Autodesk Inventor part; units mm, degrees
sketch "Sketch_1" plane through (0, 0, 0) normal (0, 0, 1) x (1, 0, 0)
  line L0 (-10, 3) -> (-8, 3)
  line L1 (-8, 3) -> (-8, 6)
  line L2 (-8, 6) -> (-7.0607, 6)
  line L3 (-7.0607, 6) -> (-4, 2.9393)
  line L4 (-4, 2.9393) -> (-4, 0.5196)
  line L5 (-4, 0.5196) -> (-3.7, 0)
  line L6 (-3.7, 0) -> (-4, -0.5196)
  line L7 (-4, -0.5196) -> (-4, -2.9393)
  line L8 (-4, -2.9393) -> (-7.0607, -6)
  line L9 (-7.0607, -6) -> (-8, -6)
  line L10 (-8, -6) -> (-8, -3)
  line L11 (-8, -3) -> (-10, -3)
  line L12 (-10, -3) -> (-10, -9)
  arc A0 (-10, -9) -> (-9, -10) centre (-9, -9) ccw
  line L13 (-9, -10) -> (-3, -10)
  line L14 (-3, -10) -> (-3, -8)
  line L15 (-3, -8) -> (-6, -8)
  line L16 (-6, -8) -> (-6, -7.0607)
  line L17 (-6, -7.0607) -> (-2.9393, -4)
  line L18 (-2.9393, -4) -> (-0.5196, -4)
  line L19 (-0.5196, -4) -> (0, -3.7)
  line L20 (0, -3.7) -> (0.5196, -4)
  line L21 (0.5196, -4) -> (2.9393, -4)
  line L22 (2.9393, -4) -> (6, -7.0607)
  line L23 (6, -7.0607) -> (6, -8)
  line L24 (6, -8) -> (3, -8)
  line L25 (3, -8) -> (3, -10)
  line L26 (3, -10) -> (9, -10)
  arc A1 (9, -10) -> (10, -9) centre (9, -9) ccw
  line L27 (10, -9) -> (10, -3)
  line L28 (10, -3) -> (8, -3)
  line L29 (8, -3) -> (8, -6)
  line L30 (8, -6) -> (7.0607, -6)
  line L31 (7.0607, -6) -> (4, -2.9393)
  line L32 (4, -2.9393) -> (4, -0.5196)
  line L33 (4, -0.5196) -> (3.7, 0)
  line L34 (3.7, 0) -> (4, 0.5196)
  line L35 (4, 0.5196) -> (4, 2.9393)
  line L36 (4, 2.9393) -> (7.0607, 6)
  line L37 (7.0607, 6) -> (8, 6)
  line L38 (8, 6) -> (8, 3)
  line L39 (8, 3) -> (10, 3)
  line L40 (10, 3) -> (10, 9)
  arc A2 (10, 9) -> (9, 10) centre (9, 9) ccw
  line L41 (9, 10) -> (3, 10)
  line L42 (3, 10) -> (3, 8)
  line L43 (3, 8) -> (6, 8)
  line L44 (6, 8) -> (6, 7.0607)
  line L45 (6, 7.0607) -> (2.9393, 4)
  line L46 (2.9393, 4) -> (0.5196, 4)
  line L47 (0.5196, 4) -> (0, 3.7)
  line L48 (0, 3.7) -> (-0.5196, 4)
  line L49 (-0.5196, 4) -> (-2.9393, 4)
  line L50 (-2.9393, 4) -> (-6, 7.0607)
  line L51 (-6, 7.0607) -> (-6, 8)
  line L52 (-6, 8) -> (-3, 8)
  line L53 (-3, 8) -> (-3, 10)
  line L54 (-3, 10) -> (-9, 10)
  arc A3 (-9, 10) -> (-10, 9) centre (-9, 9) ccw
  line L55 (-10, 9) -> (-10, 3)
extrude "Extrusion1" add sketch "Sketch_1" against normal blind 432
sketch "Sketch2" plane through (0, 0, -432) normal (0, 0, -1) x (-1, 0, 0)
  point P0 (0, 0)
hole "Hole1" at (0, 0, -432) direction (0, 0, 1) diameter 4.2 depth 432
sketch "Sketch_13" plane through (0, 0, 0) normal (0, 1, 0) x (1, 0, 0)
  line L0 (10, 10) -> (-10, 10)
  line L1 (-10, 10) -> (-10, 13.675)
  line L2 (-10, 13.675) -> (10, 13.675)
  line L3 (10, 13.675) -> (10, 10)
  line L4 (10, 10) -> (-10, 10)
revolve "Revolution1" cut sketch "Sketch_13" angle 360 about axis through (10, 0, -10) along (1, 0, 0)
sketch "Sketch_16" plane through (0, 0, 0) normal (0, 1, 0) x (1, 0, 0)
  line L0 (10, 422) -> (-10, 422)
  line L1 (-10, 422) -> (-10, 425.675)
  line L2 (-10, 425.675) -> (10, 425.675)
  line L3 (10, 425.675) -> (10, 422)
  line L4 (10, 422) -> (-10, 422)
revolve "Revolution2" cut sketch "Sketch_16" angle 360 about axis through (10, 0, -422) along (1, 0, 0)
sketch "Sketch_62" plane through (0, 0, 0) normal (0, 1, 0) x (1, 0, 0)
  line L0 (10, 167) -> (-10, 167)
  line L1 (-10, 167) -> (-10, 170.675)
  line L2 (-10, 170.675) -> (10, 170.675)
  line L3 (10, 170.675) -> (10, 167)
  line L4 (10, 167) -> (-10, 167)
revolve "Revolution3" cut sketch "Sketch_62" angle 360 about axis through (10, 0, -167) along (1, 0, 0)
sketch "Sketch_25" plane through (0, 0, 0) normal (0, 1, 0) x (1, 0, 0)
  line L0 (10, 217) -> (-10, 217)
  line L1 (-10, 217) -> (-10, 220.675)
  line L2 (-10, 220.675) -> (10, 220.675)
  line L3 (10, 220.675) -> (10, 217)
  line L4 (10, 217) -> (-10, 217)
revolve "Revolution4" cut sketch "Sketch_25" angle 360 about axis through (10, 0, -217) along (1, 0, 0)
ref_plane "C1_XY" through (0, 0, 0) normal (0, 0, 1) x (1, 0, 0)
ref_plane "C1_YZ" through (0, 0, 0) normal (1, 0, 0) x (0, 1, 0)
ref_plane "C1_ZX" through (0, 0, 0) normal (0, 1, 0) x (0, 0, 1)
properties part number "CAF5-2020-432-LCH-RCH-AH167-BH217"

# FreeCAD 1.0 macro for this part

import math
import FreeCAD as App
import Part
import Sketcher

V = App.Vector
Q = App.Units.Quantity


def add_polygon(sketch, points):
    """Adds a closed chain of lines whose ends are joined by coincident constraints."""
    first, n = sketch.GeometryCount, len(points)
    for a, b in zip(points, points[1:] + points[:1]):
        sketch.addGeometry(Part.LineSegment(App.Vector(*a, 0), App.Vector(*b, 0)), False)
    for i in range(n):
        sketch.addConstraint(Sketcher.Constraint("Coincident", first + i, 2, first + (i + 1) % n, 1))

doc = App.newDocument("Part")
body = doc.addObject("PartDesign::Body", "Body")

# Sketch on XY plane
sketch1 = doc.addObject("Sketcher::SketchObject", "Sketch")
body.addObject(sketch1)
sketch1.AttachmentSupport = (doc.XY_Plane, [""])
sketch1.MapMode = "FlatFace"
sketch1.addGeometry([
    Part.LineSegment(V(-10, 9, 0), V(-10, 3, 0)),  # 0
    Part.LineSegment(V(-10, 3, 0), V(-8, 3, 0)),  # 1
    Part.LineSegment(V(-8, 3, 0), V(-8, 6, 0)),  # 2
    Part.LineSegment(V(-8, 6, 0), V(-7.1, 6, 0)),  # 3
    Part.LineSegment(V(-7.1, 6, 0), V(-4, 2.9, 0)),  # 4
    Part.LineSegment(V(-4, 2.9, 0), V(-4, 0.5, 0)),  # 5
    Part.LineSegment(V(-4, 0.5, 0), V(-3.7, 0, 0)),  # 6
    Part.LineSegment(V(-3.7, 0, 0), V(-4, -0.5, 0)),  # 7
    Part.LineSegment(V(-4, -0.5, 0), V(-4, -2.9, 0)),  # 8
    Part.LineSegment(V(-4, -2.9, 0), V(-7.1, -6, 0)),  # 9
    Part.LineSegment(V(-7.1, -6, 0), V(-8, -6, 0)),  # 10
    Part.LineSegment(V(-8, -6, 0), V(-8, -3, 0)),  # 11
    Part.LineSegment(V(-8, -3, 0), V(-10, -3, 0)),  # 12
    Part.LineSegment(V(-10, -3, 0), V(-10, -9, 0)),  # 13
    Part.ArcOfCircle(Part.Circle(V(-9, -9, 0), V(0, 0, 1), 1), math.radians(180), math.radians(270)),  # 14
    Part.LineSegment(V(-9, -10, 0), V(-3, -10, 0)),  # 15
    Part.LineSegment(V(-3, -10, 0), V(-3, -8, 0)),  # 16
    Part.LineSegment(V(-3, -8, 0), V(-6, -8, 0)),  # 17
    Part.LineSegment(V(-6, -8, 0), V(-6, -7.1, 0)),  # 18
    Part.LineSegment(V(-6, -7.1, 0), V(-2.9, -4, 0)),  # 19
    Part.LineSegment(V(-2.9, -4, 0), V(-0.5, -4, 0)),  # 20
    Part.LineSegment(V(-0.5, -4, 0), V(0, -3.7, 0)),  # 21
    Part.LineSegment(V(0, -3.7, 0), V(0.5, -4, 0)),  # 22
    Part.LineSegment(V(0.5, -4, 0), V(2.9, -4, 0)),  # 23
    Part.LineSegment(V(2.9, -4, 0), V(6, -7.1, 0)),  # 24
    Part.LineSegment(V(6, -7.1, 0), V(6, -8, 0)),  # 25
    Part.LineSegment(V(6, -8, 0), V(3, -8, 0)),  # 26
    Part.LineSegment(V(3, -8, 0), V(3, -10, 0)),  # 27
    Part.LineSegment(V(3, -10, 0), V(9, -10, 0)),  # 28
    Part.ArcOfCircle(Part.Circle(V(9, -9, 0), V(0, 0, 1), 1), math.radians(-90), math.radians(0)),  # 29
    Part.LineSegment(V(10, -9, 0), V(10, -3, 0)),  # 30
    Part.LineSegment(V(10, -3, 0), V(8, -3, 0)),  # 31
    Part.LineSegment(V(8, -3, 0), V(8, -6, 0)),  # 32
    Part.LineSegment(V(8, -6, 0), V(7.1, -6, 0)),  # 33
    Part.LineSegment(V(7.1, -6, 0), V(4, -2.9, 0)),  # 34
    Part.LineSegment(V(4, -2.9, 0), V(4, -0.5, 0)),  # 35
    Part.LineSegment(V(4, -0.5, 0), V(3.7, 0, 0)),  # 36
    Part.LineSegment(V(3.7, 0, 0), V(4, 0.5, 0)),  # 37
    Part.LineSegment(V(4, 0.5, 0), V(4, 2.9, 0)),  # 38
    Part.LineSegment(V(4, 2.9, 0), V(7.1, 6, 0)),  # 39
    Part.LineSegment(V(7.1, 6, 0), V(8, 6, 0)),  # 40
    Part.LineSegment(V(8, 6, 0), V(8, 3, 0)),  # 41
    Part.LineSegment(V(8, 3, 0), V(10, 3, 0)),  # 42
    Part.LineSegment(V(10, 3, 0), V(10, 9, 0)),  # 43
    Part.ArcOfCircle(Part.Circle(V(9, 9, 0), V(0, 0, 1), 1), math.radians(0), math.radians(90)),  # 44
    Part.LineSegment(V(9, 10, 0), V(3, 10, 0)),  # 45
    Part.LineSegment(V(3, 10, 0), V(3, 8, 0)),  # 46
    Part.LineSegment(V(3, 8, 0), V(6, 8, 0)),  # 47
    Part.LineSegment(V(6, 8, 0), V(6, 7.1, 0)),  # 48
    Part.LineSegment(V(6, 7.1, 0), V(2.9, 4, 0)),  # 49
    Part.LineSegment(V(2.9, 4, 0), V(0.5, 4, 0)),  # 50
    Part.LineSegment(V(0.5, 4, 0), V(0, 3.7, 0)),  # 51
    Part.LineSegment(V(0, 3.7, 0), V(-0.5, 4, 0)),  # 52
    Part.LineSegment(V(-0.5, 4, 0), V(-2.9, 4, 0)),  # 53
    Part.LineSegment(V(-2.9, 4, 0), V(-6, 7.1, 0)),  # 54
    Part.LineSegment(V(-6, 7.1, 0), V(-6, 8, 0)),  # 55
    Part.LineSegment(V(-6, 8, 0), V(-3, 8, 0)),  # 56
    Part.LineSegment(V(-3, 8, 0), V(-3, 10, 0)),  # 57
    Part.LineSegment(V(-3, 10, 0), V(-9, 10, 0)),  # 58
    Part.ArcOfCircle(Part.Circle(V(-9, 9, 0), V(0, 0, 1), 1), math.radians(90), math.radians(180)),  # 59
], False)
sketch1.addConstraint([
    Sketcher.Constraint("Coincident", 0, 2, 1, 1),
    Sketcher.Constraint("Coincident", 1, 2, 2, 1),
    Sketcher.Constraint("Coincident", 2, 2, 3, 1),
    Sketcher.Constraint("Coincident", 3, 2, 4, 1),
    Sketcher.Constraint("Coincident", 4, 2, 5, 1),
    Sketcher.Constraint("Coincident", 5, 2, 6, 1),
    Sketcher.Constraint("Coincident", 6, 2, 7, 1),
    Sketcher.Constraint("Coincident", 7, 2, 8, 1),
    Sketcher.Constraint("Coincident", 8, 2, 9, 1),
    Sketcher.Constraint("Coincident", 9, 2, 10, 1),
    Sketcher.Constraint("Coincident", 10, 2, 11, 1),
    Sketcher.Constraint("Coincident", 11, 2, 12, 1),
    Sketcher.Constraint("Coincident", 12, 2, 13, 1),
    Sketcher.Constraint("Tangent", 13, 2, 14, 1),
    Sketcher.Constraint("Tangent", 14, 2, 15, 1),
    Sketcher.Constraint("Coincident", 15, 2, 16, 1),
    Sketcher.Constraint("Coincident", 16, 2, 17, 1),
    Sketcher.Constraint("Coincident", 17, 2, 18, 1),
    Sketcher.Constraint("Coincident", 18, 2, 19, 1),
    Sketcher.Constraint("Coincident", 19, 2, 20, 1),
    Sketcher.Constraint("Coincident", 20, 2, 21, 1),
    Sketcher.Constraint("Coincident", 21, 2, 22, 1),
    Sketcher.Constraint("Coincident", 22, 2, 23, 1),
    Sketcher.Constraint("Coincident", 23, 2, 24, 1),
    Sketcher.Constraint("Coincident", 24, 2, 25, 1),
    Sketcher.Constraint("Coincident", 25, 2, 26, 1),
    Sketcher.Constraint("Coincident", 26, 2, 27, 1),
    Sketcher.Constraint("Coincident", 27, 2, 28, 1),
    Sketcher.Constraint("Tangent", 28, 2, 29, 1),
    Sketcher.Constraint("Tangent", 29, 2, 30, 1),
    Sketcher.Constraint("Coincident", 30, 2, 31, 1),
    Sketcher.Constraint("Coincident", 31, 2, 32, 1),
    Sketcher.Constraint("Coincident", 32, 2, 33, 1),
    Sketcher.Constraint("Coincident", 33, 2, 34, 1),
    Sketcher.Constraint("Coincident", 34, 2, 35, 1),
    Sketcher.Constraint("Coincident", 35, 2, 36, 1),
    Sketcher.Constraint("Coincident", 36, 2, 37, 1),
    Sketcher.Constraint("Coincident", 37, 2, 38, 1),
    Sketcher.Constraint("Coincident", 38, 2, 39, 1),
    Sketcher.Constraint("Coincident", 39, 2, 40, 1),
    Sketcher.Constraint("Coincident", 40, 2, 41, 1),
    Sketcher.Constraint("Coincident", 41, 2, 42, 1),
    Sketcher.Constraint("Coincident", 42, 2, 43, 1),
    Sketcher.Constraint("Tangent", 43, 2, 44, 1),
    Sketcher.Constraint("Tangent", 44, 2, 45, 1),
    Sketcher.Constraint("Coincident", 45, 2, 46, 1),
    Sketcher.Constraint("Coincident", 46, 2, 47, 1),
    Sketcher.Constraint("Coincident", 47, 2, 48, 1),
    Sketcher.Constraint("Coincident", 48, 2, 49, 1),
    Sketcher.Constraint("Coincident", 49, 2, 50, 1),
    Sketcher.Constraint("Coincident", 50, 2, 51, 1),
    Sketcher.Constraint("Coincident", 51, 2, 52, 1),
    Sketcher.Constraint("Coincident", 52, 2, 53, 1),
    Sketcher.Constraint("Coincident", 53, 2, 54, 1),
    Sketcher.Constraint("Coincident", 54, 2, 55, 1),
    Sketcher.Constraint("Coincident", 55, 2, 56, 1),
    Sketcher.Constraint("Coincident", 56, 2, 57, 1),
    Sketcher.Constraint("Coincident", 57, 2, 58, 1),
    Sketcher.Constraint("Tangent", 58, 2, 59, 1),
    Sketcher.Constraint("Tangent", 59, 2, 0, 1),
    Sketcher.Constraint("Vertical", 0),
    Sketcher.Constraint("Horizontal", 1),
    Sketcher.Constraint("Vertical", 2),
    Sketcher.Constraint("Horizontal", 3),
    Sketcher.Constraint("Vertical", 5),
    Sketcher.Constraint("Vertical", 8),
    Sketcher.Constraint("Horizontal", 10),
    Sketcher.Constraint("Vertical", 11),
    Sketcher.Constraint("Horizontal", 12),
    Sketcher.Constraint("Vertical", 13),
    Sketcher.Constraint("Horizontal", 15),
    Sketcher.Constraint("Vertical", 16),
    Sketcher.Constraint("Horizontal", 17),
    Sketcher.Constraint("Vertical", 18),
    Sketcher.Constraint("Horizontal", 20),
    Sketcher.Constraint("Horizontal", 23),
    Sketcher.Constraint("Vertical", 25),
    Sketcher.Constraint("Horizontal", 26),
    Sketcher.Constraint("Vertical", 27),
    Sketcher.Constraint("Horizontal", 28),
    Sketcher.Constraint("Vertical", 30),
    Sketcher.Constraint("Horizontal", 31),
    Sketcher.Constraint("Vertical", 32),
    Sketcher.Constraint("Horizontal", 33),
    Sketcher.Constraint("Vertical", 35),
    Sketcher.Constraint("Vertical", 38),
    Sketcher.Constraint("Horizontal", 40),
    Sketcher.Constraint("Vertical", 41),
    Sketcher.Constraint("Horizontal", 42),
    Sketcher.Constraint("Vertical", 43),
    Sketcher.Constraint("Horizontal", 45),
    Sketcher.Constraint("Vertical", 46),
    Sketcher.Constraint("Horizontal", 47),
    Sketcher.Constraint("Vertical", 48),
    Sketcher.Constraint("Horizontal", 50),
    Sketcher.Constraint("Horizontal", 53),
    Sketcher.Constraint("Vertical", 55),
    Sketcher.Constraint("Horizontal", 56),
    Sketcher.Constraint("Vertical", 57),
    Sketcher.Constraint("Horizontal", 58),
    Sketcher.Constraint("Equal", 14, 29),
    Sketcher.Constraint("Equal", 29, 44),
    Sketcher.Constraint("Equal", 44, 59),
    Sketcher.Constraint("Symmetric", 14, 3, 44, 3, -1, 1),
    Sketcher.Constraint("Symmetric", 29, 3, 59, 3, -1, 1),
    Sketcher.Constraint("Symmetric", 1, 2, 31, 2, -1, 1),
    Sketcher.Constraint("Symmetric", 3, 2, 33, 2, -1, 1),
    Sketcher.Constraint("Symmetric", 4, 2, 34, 2, -1, 1),
    Sketcher.Constraint("Symmetric", 6, 2, 36, 2, -1, 1),
    Sketcher.Constraint("Symmetric", 7, 2, 37, 2, -1, 1),
    Sketcher.Constraint("Symmetric", 9, 2, 39, 2, -1, 1),
    Sketcher.Constraint("Symmetric", 11, 2, 41, 2, -1, 1),
    Sketcher.Constraint("Symmetric", 16, 2, 46, 2, -1, 1),
    Sketcher.Constraint("Symmetric", 18, 2, 48, 2, -1, 1),
    Sketcher.Constraint("Symmetric", 19, 2, 49, 2, -1, 1),
    Sketcher.Constraint("Symmetric", 21, 2, 51, 2, -1, 1),
    Sketcher.Constraint("Symmetric", 22, 2, 52, 2, -1, 1),
    Sketcher.Constraint("Symmetric", 24, 2, 54, 2, -1, 1),
    Sketcher.Constraint("Symmetric", 26, 2, 56, 2, -1, 1),
    Sketcher.Constraint("Symmetric", 14, 3, 29, 3, -2),
    Sketcher.Constraint("Symmetric", 20, 2, 22, 2, -2),
    Sketcher.Constraint("Symmetric", 18, 2, 24, 2, -2),
    Sketcher.Constraint("Symmetric", 16, 2, 26, 2, -2),
    Sketcher.Constraint("Symmetric", 11, 2, 31, 2, -2),
    Sketcher.Constraint("Symmetric", 9, 2, 33, 2, -2),
    Sketcher.Constraint("Symmetric", 8, 2, 34, 2, -2),
    Sketcher.Constraint("PointOnObject", 6, 2, -1),
    Sketcher.Constraint("PointOnObject", 21, 2, -2),
    Sketcher.Constraint("Perpendicular", 4, 9),
    Sketcher.Constraint("Parallel", 9, 19),
    Sketcher.Constraint("Perpendicular", 6, 21),
    Sketcher.Constraint("Perpendicular", 7, 22),
    Sketcher.Constraint("Perpendicular", 19, 24),
    Sketcher.Constraint("Perpendicular", 21, 36),
    Sketcher.Constraint("Perpendicular", 34, 39),
    Sketcher.Constraint("Perpendicular", 36, 51),
    Sketcher.Constraint("Perpendicular", 49, 54),
    Sketcher.Constraint("Equal", 58, 0),
    Sketcher.Constraint("Equal", 56, 2),
    Sketcher.Constraint("Equal", 53, 5),
    Sketcher.Constraint("Equal", 42, 16),
    Sketcher.Constraint("Equal", 40, 18),
    Sketcher.Constraint("Equal", 9, 19),
    Sketcher.Constraint("Equal", 7, 21),
    Sketcher.Constraint("Radius", 14, 1.0),
    Sketcher.Constraint("DistanceX", 1, 1, 1, 2, 2.0),
    Sketcher.Constraint("DistanceX", 15, 1, 15, 2, 6.0),
    Sketcher.Constraint("DistanceX", 17, 2, 17, 1, 3.0),
    Sketcher.Constraint("Angle", 6, Q("-59.9993 deg")),
    Sketcher.Constraint("DistanceX", 14, 3, -1, 1, 9.0),
    Sketcher.Constraint("DistanceX", 4, 2, -1, 1, 4.0),
    Sketcher.Constraint("Distance", 6, 0.6),
    Sketcher.Constraint("DistanceX", 3, 1, 3, 2, 0.9393),
])
pad1 = doc.addObject("PartDesign::Pad", "Pad")
body.addObject(pad1)
pad1.Profile = sketch1
pad1.Length = 432
pad1.Reversed = True

# Sketch on XY plane
sketch2 = doc.addObject("Sketcher::SketchObject", "Sketch001")
body.addObject(sketch2)
sketch2.AttachmentSupport = (doc.XY_Plane, [""])
sketch2.MapMode = "FlatFace"
sketch2.AttachmentOffset = App.Placement(V(0, 0, -432), App.Rotation())
sketch2.addGeometry(Part.Circle(V(0, 0, 0), V(0, 0, 1), 2.1), False)
sketch2.addConstraint([
    Sketcher.Constraint("Coincident", 0, 3, -1, 1),
    Sketcher.Constraint("Diameter", 0, 4.2),
])
doc.recompute()
hole = doc.addObject("PartDesign::Hole", "Hole")
body.addObject(hole)
hole.Profile = sketch2
hole.ThreadType = "None"
hole.Diameter = 4.2
hole.DepthType = "Dimension"
hole.Depth = 432
hole.DrillPoint = "Flat"
hole.Reversed = True

# Sketch on XZ plane
sketch3 = doc.addObject("Sketcher::SketchObject", "Sketch002")
body.addObject(sketch3)
sketch3.AttachmentSupport = (doc.XZ_Plane, [""])
sketch3.MapMode = "FlatFace"
add_polygon(sketch3, [(-10, -10), (10, -10), (10, -13.7), (-10, -13.7)])  # lines 0-3
sketch3.addGeometry(Part.LineSegment(V(-10, -10, 0), V(10, -10, 0)), True)  # axis
sketch3.addConstraint([
    Sketcher.Constraint("Horizontal", 0),
    Sketcher.Constraint("Vertical", 1),
    Sketcher.Constraint("Horizontal", 2),
    Sketcher.Constraint("Vertical", 3),
    Sketcher.Constraint("Horizontal", 4),
    Sketcher.Constraint("Coincident", 4, 1, 3, 2),
    Sketcher.Constraint("Vertical", 1, 2, 4, 2),
    Sketcher.Constraint("DistanceX", 0, 1, 0, 2, 20.0),
    Sketcher.Constraint("DistanceX", -1, 1, 0, 2, 10.0),
    Sketcher.Constraint("DistanceY", 0, 2, -1, 1, 10.0),
    Sketcher.Constraint("DistanceY", 1, 2, 1, 1, 3.675),
])
groove = doc.addObject("PartDesign::Groove", "Groove")
body.addObject(groove)
groove.Profile = sketch3
groove.ReferenceAxis = (sketch3, ["Axis0"])
groove.Angle = 360

# Sketch on XZ plane
sketch4 = doc.addObject("Sketcher::SketchObject", "Sketch003")
body.addObject(sketch4)
sketch4.AttachmentSupport = (doc.XZ_Plane, [""])
sketch4.MapMode = "FlatFace"
add_polygon(sketch4, [(-10, -422), (10, -422), (10, -425.7), (-10, -425.7)])  # lines 0-3
sketch4.addGeometry(Part.LineSegment(V(-10, -422, 0), V(10, -422, 0)), True)  # axis
sketch4.addConstraint([
    Sketcher.Constraint("Horizontal", 0),
    Sketcher.Constraint("Vertical", 1),
    Sketcher.Constraint("Horizontal", 2),
    Sketcher.Constraint("Vertical", 3),
    Sketcher.Constraint("Horizontal", 4),
    Sketcher.Constraint("Coincident", 4, 1, 3, 2),
    Sketcher.Constraint("Vertical", 1, 2, 4, 2),
    Sketcher.Constraint("DistanceX", 0, 1, 0, 2, 20.0),
    Sketcher.Constraint("DistanceX", -1, 1, 0, 2, 10.0),
    Sketcher.Constraint("DistanceY", 0, 2, -1, 1, 422.0),
    Sketcher.Constraint("DistanceY", 1, 2, 1, 1, 3.675),
])
groove2 = doc.addObject("PartDesign::Groove", "Groove001")
body.addObject(groove2)
groove2.Profile = sketch4
groove2.ReferenceAxis = (sketch4, ["Axis0"])
groove2.Angle = 360

# Sketch on XZ plane
sketch5 = doc.addObject("Sketcher::SketchObject", "Sketch004")
body.addObject(sketch5)
sketch5.AttachmentSupport = (doc.XZ_Plane, [""])
sketch5.MapMode = "FlatFace"
add_polygon(sketch5, [(-10, -167), (10, -167), (10, -170.7), (-10, -170.7)])  # lines 0-3
sketch5.addGeometry(Part.LineSegment(V(-10, -167, 0), V(10, -167, 0)), True)  # axis
sketch5.addConstraint([
    Sketcher.Constraint("Horizontal", 0),
    Sketcher.Constraint("Vertical", 1),
    Sketcher.Constraint("Horizontal", 2),
    Sketcher.Constraint("Vertical", 3),
    Sketcher.Constraint("Horizontal", 4),
    Sketcher.Constraint("Coincident", 4, 1, 3, 2),
    Sketcher.Constraint("Vertical", 1, 2, 4, 2),
    Sketcher.Constraint("DistanceX", 0, 1, 0, 2, 20.0),
    Sketcher.Constraint("DistanceX", -1, 1, 0, 2, 10.0),
    Sketcher.Constraint("DistanceY", 0, 2, -1, 1, 167.0),
    Sketcher.Constraint("DistanceY", 1, 2, 1, 1, 3.675),
])
groove3 = doc.addObject("PartDesign::Groove", "Groove002")
body.addObject(groove3)
groove3.Profile = sketch5
groove3.ReferenceAxis = (sketch5, ["Axis0"])
groove3.Angle = 360

# Sketch on XZ plane
sketch6 = doc.addObject("Sketcher::SketchObject", "Sketch005")
body.addObject(sketch6)
sketch6.AttachmentSupport = (doc.XZ_Plane, [""])
sketch6.MapMode = "FlatFace"
add_polygon(sketch6, [(-10, -217), (10, -217), (10, -220.7), (-10, -220.7)])  # lines 0-3
sketch6.addGeometry(Part.LineSegment(V(-10, -217, 0), V(10, -217, 0)), True)  # axis
sketch6.addConstraint([
    Sketcher.Constraint("Horizontal", 0),
    Sketcher.Constraint("Vertical", 1),
    Sketcher.Constraint("Horizontal", 2),
    Sketcher.Constraint("Vertical", 3),
    Sketcher.Constraint("Horizontal", 4),
    Sketcher.Constraint("Coincident", 4, 1, 3, 2),
    Sketcher.Constraint("Vertical", 1, 2, 4, 2),
    Sketcher.Constraint("DistanceX", 0, 1, 0, 2, 20.0),
    Sketcher.Constraint("DistanceX", -1, 1, 0, 2, 10.0),
    Sketcher.Constraint("DistanceY", 0, 2, -1, 1, 217.0),
    Sketcher.Constraint("DistanceY", 1, 2, 1, 1, 3.675),
])
groove4 = doc.addObject("PartDesign::Groove", "Groove003")
body.addObject(groove4)
groove4.Profile = sketch6
groove4.ReferenceAxis = (sketch6, ["Axis0"])
groove4.Angle = 360

doc.recompute()
